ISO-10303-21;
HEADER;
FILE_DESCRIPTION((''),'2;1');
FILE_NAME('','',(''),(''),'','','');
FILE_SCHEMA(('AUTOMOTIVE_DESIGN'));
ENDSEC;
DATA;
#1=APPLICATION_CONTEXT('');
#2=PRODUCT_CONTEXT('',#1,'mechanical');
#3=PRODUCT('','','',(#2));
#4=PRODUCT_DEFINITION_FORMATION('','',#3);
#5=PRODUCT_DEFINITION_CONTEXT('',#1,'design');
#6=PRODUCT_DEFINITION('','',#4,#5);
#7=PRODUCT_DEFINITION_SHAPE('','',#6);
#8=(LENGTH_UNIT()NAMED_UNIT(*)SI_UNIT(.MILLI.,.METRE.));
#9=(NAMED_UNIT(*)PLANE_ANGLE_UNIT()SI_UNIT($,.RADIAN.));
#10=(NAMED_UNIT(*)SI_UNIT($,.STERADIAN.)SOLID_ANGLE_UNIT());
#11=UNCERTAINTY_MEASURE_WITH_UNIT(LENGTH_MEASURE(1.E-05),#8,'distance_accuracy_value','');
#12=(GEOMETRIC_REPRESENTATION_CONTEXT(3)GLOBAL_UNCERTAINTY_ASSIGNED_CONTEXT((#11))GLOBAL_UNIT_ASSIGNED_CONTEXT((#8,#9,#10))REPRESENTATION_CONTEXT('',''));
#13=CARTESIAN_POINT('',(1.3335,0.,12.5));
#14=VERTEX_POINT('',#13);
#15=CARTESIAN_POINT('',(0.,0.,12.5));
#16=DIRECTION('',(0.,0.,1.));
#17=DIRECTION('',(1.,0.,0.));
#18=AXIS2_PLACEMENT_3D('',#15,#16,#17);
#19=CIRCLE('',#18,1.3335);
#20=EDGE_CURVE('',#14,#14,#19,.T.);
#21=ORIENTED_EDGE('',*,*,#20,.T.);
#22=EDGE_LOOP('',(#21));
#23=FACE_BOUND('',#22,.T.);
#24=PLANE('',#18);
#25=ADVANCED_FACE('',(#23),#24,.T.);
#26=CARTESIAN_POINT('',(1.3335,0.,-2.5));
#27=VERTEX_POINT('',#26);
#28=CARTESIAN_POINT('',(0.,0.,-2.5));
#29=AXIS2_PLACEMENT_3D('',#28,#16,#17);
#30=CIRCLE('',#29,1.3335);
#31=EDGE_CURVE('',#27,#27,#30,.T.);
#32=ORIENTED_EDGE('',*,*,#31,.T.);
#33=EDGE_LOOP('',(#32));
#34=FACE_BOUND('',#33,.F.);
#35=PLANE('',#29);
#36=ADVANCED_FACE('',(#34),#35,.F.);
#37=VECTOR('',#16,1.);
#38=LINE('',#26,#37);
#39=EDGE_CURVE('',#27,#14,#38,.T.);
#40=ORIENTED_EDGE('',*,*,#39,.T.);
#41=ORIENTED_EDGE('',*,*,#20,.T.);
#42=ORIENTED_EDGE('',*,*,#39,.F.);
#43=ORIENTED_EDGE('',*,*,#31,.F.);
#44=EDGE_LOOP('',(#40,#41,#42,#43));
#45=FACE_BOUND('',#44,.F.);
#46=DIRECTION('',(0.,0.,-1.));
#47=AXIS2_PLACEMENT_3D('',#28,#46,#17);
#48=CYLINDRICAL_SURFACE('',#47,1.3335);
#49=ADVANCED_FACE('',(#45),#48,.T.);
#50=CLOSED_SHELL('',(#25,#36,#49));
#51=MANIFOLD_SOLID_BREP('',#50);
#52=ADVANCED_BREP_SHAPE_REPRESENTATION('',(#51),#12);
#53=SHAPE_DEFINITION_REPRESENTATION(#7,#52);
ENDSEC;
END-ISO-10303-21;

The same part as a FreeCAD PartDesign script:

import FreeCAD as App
import Part
import Sketcher
Q = App.Units.Quantity

doc = App.newDocument("Part")
body = doc.addObject("PartDesign::Body", "Body")

sketch1 = body.newObject("Sketcher::SketchObject", "Sketch")
sketch1.AttachmentSupport = (doc.getObject("XY_Plane"), [""])
sketch1.MapMode = "FlatFace"
sketch1.AttachmentOffset = App.Placement(App.Vector(0, 0, -2.5), App.Rotation())
sketch1.addGeometry(Part.Circle(App.Vector(0, 0, 0), App.Vector(0, 0, 1), 1.3), False)
sketch1.addConstraint(Sketcher.Constraint("Coincident", 0, 3, -1, 1))
sketch1.addConstraint(Sketcher.Constraint("Diameter", 0, Q("2.667 mm")))
pad1 = body.newObject("PartDesign::Pad", "Pad")
pad1.Profile = sketch1
pad1.Length = 15

doc.recompute()
